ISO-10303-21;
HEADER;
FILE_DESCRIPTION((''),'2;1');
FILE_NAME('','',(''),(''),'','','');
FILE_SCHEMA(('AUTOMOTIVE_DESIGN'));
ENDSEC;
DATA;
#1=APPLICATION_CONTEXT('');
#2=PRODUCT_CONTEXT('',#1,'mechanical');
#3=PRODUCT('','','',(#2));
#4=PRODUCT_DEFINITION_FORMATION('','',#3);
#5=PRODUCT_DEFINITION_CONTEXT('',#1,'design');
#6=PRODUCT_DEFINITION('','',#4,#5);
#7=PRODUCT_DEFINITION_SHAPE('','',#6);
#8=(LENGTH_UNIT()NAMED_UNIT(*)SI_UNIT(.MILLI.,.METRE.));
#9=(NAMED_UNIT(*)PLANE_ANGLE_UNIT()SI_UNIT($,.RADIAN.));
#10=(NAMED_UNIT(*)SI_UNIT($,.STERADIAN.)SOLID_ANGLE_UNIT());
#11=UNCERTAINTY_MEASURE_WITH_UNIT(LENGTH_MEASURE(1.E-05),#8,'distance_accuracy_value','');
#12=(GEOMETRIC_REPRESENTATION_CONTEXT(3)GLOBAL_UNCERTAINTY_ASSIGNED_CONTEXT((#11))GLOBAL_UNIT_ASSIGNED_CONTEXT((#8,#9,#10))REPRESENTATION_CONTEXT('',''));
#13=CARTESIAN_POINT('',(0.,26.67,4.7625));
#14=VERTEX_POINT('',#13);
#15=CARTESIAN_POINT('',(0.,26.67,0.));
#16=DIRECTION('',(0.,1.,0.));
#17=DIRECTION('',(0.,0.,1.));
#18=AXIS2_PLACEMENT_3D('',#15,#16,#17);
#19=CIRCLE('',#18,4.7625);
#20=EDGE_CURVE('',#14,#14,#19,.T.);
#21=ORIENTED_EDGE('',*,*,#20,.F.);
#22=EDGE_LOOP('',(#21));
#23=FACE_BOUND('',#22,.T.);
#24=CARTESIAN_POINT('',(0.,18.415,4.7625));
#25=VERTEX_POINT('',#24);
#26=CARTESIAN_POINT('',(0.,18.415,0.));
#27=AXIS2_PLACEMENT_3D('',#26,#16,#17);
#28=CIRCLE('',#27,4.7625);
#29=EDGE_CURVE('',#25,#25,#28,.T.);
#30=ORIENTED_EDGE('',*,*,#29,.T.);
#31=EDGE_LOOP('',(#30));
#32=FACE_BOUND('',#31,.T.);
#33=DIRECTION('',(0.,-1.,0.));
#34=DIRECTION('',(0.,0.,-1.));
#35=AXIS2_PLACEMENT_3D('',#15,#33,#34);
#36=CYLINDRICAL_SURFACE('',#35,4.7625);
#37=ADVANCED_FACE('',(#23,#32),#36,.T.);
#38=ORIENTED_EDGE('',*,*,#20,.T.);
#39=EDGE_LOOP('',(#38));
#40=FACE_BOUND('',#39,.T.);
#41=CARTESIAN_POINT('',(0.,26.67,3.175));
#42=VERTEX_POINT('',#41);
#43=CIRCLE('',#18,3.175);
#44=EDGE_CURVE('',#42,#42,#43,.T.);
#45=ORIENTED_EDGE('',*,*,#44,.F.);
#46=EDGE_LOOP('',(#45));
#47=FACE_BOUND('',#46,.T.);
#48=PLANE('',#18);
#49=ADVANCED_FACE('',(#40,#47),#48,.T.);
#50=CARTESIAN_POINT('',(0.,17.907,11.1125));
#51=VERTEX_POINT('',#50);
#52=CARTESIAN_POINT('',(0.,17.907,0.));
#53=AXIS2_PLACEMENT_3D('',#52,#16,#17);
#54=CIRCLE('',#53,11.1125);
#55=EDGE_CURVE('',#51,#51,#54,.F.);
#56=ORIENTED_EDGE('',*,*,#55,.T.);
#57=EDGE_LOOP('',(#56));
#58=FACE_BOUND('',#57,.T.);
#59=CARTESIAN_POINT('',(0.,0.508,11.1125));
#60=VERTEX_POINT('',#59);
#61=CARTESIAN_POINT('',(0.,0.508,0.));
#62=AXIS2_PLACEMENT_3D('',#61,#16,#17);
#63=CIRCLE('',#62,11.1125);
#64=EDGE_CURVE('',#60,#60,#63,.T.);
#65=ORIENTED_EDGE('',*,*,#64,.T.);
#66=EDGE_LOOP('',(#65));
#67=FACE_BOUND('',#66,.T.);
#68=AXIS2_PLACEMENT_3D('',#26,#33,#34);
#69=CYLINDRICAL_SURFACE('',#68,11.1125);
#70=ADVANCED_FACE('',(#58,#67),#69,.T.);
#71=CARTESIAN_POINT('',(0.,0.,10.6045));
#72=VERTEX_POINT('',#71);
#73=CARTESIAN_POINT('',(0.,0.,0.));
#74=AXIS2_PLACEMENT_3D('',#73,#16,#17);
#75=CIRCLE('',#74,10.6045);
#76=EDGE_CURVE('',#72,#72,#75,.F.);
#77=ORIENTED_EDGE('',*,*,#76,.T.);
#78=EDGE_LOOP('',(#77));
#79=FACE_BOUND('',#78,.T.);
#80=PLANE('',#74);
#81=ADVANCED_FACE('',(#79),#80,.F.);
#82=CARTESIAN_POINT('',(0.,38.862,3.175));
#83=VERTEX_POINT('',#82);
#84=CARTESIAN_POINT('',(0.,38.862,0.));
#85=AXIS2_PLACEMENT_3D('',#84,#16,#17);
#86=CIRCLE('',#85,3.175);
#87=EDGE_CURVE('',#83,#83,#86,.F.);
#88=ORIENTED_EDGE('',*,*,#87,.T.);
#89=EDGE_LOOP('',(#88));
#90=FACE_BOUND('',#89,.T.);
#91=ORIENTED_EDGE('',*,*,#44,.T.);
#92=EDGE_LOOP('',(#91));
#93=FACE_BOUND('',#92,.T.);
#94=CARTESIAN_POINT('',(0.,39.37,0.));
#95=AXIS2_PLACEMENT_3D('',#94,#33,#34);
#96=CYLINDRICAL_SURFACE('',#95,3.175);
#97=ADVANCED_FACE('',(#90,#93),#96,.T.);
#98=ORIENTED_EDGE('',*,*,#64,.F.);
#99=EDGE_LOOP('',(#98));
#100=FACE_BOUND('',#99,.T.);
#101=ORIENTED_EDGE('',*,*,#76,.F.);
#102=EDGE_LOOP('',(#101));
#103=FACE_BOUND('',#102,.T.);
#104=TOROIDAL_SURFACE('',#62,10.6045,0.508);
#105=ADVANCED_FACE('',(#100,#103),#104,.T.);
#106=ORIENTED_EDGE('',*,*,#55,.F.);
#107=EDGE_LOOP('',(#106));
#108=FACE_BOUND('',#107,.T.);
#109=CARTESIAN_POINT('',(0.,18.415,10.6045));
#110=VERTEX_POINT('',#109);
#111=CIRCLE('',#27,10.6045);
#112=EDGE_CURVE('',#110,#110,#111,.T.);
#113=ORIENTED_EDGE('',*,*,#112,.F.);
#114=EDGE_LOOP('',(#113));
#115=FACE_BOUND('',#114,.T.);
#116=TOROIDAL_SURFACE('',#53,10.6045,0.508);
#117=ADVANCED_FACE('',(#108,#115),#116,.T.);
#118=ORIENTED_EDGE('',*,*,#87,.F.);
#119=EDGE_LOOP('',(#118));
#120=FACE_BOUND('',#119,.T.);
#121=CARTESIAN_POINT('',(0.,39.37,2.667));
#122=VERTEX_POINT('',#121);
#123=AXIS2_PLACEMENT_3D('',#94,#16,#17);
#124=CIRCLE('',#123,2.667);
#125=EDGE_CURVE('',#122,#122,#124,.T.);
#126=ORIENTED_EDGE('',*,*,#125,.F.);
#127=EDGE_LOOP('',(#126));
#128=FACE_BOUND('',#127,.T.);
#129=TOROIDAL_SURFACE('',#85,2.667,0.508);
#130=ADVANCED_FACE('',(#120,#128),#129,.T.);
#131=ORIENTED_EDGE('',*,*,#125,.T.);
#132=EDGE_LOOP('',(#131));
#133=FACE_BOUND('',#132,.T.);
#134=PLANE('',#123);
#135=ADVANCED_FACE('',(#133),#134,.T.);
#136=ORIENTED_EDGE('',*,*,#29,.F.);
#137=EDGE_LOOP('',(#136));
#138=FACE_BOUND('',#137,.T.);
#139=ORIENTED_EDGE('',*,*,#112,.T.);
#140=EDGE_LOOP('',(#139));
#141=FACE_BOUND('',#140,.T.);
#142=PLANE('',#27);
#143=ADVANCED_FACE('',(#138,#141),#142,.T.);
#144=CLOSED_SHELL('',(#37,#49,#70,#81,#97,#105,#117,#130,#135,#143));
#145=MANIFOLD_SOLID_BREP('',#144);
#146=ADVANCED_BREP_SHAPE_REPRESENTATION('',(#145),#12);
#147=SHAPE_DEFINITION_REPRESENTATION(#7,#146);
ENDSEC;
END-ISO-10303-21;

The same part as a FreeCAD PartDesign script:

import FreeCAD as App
import Part
import Sketcher
from FreeCAD import Vector
Q = App.Units.Quantity


def edges_at(feature, points):
    """Names of the edges that pass closest to the given points."""
    edges = feature.Shape.Edges
    near = lambda p: min(range(len(edges)), key=lambda i: edges[i].distToShape(Part.Vertex(*p))[0])
    return sorted({f"Edge{near(p) + 1}" for p in points})

doc = App.newDocument("Part")
body = doc.addObject("PartDesign::Body", "Body")

sketch1 = body.newObject("Sketcher::SketchObject", "Sketch")
sketch1.AttachmentSupport = (doc.getObject("XZ_Plane"), [""])
sketch1.MapMode = "FlatFace"
sketch1.addGeometry(Part.Circle(Vector(0, 0, 0), Vector(0, 0, 1), 11), False)
sketch1.addConstraint(Sketcher.Constraint("Coincident", 0, 3, -1, 1))
sketch1.addConstraint(Sketcher.Constraint("Diameter", 0, Q("0.875 in")))
pad1 = body.newObject("PartDesign::Pad", "Pad")
pad1.Profile = sketch1
pad1.Length = Q("0.725 in")
pad1.Reversed = True

sketch2 = body.newObject("Sketcher::SketchObject", "Sketch001")
sketch2.AttachmentSupport = (doc.getObject("XZ_Plane"), [""])
sketch2.MapMode = "FlatFace"
sketch2.AttachmentOffset = App.Placement(Vector(0, 0, -0.725 * 25.4), App.Rotation())
sketch2.addGeometry(Part.Circle(Vector(0, 0, 0), Vector(0, 0, 1), 4.8), False)
sketch2.addConstraint(Sketcher.Constraint("Coincident", 0, 3, -1, 1))
sketch2.addConstraint(Sketcher.Constraint("Diameter", 0, Q("0.375 in")))
pad2 = body.newObject("PartDesign::Pad", "Pad001")
pad2.Profile = sketch2
pad2.Length = Q("0.325 in")
pad2.Reversed = True

sketch3 = body.newObject("Sketcher::SketchObject", "Sketch002")
sketch3.AttachmentSupport = (doc.getObject("XZ_Plane"), [""])
sketch3.MapMode = "FlatFace"
sketch3.AttachmentOffset = App.Placement(Vector(0, 0, -1.05 * 25.4), App.Rotation())
sketch3.addGeometry(Part.Circle(Vector(0, 0, 0), Vector(0, 0, 1), 3.2), False)
sketch3.addConstraint(Sketcher.Constraint("Coincident", 0, 3, -1, 1))
sketch3.addConstraint(Sketcher.Constraint("Diameter", 0, Q("0.25 in")))
pad3 = body.newObject("PartDesign::Pad", "Pad002")
pad3.Profile = sketch3
pad3.Length = Q("0.5 in")
pad3.Reversed = True
doc.recompute()

fillet = body.newObject("PartDesign::Fillet", "Fillet")
fillet.Base = (pad3, edges_at(pad3, [(0, 0, -11.113), (0, 18.415, -11.113)]))
fillet.Radius = Q("0.02 in")
doc.recompute()

fillet2 = body.newObject("PartDesign::Fillet", "Fillet001")
fillet2.Base = (fillet, edges_at(fillet, [(0, 39.37, -3.175)]))
fillet2.Radius = Q("0.02 in")

doc.recompute()
